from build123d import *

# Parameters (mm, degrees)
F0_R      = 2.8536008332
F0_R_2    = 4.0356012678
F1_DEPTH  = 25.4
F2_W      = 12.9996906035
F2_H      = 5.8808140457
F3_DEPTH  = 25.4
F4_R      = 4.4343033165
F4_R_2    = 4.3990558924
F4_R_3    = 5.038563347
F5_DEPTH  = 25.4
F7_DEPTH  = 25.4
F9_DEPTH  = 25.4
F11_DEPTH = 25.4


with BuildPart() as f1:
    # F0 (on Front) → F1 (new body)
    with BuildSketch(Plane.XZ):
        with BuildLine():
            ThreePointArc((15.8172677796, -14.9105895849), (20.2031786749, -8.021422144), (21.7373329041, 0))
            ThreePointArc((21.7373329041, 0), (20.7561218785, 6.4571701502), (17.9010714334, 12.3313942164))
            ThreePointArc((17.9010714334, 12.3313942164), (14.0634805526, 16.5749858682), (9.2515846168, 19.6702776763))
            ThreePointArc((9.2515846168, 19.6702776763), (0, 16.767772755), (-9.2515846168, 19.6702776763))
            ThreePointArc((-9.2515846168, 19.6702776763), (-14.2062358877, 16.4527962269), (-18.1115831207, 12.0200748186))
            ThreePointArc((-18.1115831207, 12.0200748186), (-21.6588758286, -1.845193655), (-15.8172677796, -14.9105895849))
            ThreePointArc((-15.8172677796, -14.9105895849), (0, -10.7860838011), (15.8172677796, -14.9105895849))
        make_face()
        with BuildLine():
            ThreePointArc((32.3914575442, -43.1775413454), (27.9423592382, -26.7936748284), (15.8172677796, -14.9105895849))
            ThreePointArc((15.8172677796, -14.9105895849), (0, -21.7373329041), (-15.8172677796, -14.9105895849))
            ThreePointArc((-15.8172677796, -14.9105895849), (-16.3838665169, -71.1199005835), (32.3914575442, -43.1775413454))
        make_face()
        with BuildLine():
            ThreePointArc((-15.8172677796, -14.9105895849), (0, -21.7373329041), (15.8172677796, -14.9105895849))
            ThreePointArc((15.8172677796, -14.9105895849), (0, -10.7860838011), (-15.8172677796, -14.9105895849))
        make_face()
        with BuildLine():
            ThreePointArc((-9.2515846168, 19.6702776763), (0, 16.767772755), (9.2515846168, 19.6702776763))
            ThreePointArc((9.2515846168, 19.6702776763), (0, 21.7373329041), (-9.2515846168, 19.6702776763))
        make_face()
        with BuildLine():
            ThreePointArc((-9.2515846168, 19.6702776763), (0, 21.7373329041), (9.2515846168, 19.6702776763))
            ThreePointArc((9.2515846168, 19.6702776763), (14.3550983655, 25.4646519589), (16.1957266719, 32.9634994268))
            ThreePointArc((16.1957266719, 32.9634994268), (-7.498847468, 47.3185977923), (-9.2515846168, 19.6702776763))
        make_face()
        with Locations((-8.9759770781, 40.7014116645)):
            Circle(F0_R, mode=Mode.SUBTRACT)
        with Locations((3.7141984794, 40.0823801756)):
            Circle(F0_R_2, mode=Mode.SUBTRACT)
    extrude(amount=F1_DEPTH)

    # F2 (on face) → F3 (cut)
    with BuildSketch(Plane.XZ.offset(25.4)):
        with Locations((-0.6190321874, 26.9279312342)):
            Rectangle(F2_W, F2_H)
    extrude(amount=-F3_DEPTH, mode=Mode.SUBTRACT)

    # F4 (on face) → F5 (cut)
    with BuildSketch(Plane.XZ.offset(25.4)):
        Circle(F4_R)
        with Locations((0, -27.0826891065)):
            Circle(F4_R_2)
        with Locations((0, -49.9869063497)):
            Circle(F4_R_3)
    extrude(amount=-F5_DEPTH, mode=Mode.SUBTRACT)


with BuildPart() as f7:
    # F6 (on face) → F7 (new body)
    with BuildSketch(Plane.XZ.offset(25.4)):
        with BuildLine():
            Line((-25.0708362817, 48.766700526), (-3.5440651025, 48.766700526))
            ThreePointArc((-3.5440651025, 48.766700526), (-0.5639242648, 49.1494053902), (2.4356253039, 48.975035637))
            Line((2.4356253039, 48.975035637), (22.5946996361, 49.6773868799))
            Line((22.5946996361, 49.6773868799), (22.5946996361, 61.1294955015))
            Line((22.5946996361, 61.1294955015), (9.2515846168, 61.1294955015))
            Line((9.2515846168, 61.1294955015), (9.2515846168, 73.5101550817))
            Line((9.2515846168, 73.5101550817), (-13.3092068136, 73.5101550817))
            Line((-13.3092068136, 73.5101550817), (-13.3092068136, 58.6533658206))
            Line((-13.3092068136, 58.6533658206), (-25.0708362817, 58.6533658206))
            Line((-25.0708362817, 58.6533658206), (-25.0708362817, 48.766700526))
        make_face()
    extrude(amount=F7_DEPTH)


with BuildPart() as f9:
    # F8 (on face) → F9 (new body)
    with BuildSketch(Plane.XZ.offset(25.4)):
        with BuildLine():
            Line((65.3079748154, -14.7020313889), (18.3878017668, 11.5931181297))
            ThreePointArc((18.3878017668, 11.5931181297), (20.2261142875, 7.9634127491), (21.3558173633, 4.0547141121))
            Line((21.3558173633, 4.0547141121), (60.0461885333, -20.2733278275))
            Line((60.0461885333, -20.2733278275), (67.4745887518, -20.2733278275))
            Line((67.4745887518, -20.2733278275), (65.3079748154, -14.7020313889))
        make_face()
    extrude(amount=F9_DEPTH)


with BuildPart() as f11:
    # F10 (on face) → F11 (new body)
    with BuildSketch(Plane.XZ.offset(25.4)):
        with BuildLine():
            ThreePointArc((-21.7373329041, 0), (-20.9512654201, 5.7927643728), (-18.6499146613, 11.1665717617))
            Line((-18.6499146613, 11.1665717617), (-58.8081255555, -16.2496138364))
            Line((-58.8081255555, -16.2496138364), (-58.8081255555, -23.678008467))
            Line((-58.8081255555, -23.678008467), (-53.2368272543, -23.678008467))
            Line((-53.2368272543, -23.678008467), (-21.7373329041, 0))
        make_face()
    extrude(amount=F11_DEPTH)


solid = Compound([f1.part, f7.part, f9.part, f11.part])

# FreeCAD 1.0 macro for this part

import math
import FreeCAD as App
import Part
import Sketcher

V = App.Vector
Q = App.Units.Quantity


def add_polygon(sketch, points):
    """Adds a closed chain of lines whose ends are joined by coincident constraints."""
    first, n = sketch.GeometryCount, len(points)
    for a, b in zip(points, points[1:] + points[:1]):
        sketch.addGeometry(Part.LineSegment(App.Vector(*a, 0), App.Vector(*b, 0)), False)
    for i in range(n):
        sketch.addConstraint(Sketcher.Constraint("Coincident", first + i, 2, first + (i + 1) % n, 1))

doc = App.newDocument("Part")
body = doc.addObject("PartDesign::Body", "Body")

sketch1 = body.newObject("Sketcher::SketchObject", "Sketch")
sketch1.AttachmentSupport = (doc.getObject("XZ_Plane"), [""])
sketch1.MapMode = "FlatFace"
sketch1.addGeometry(Part.ArcOfCircle(Part.Circle(V(0, 0, 0), V(0, 0, 1), 21.7), math.radians(-43), math.radians(0)), False)
sketch1.addGeometry(Part.ArcOfCircle(Part.Circle(V(0, 0, 0), V(0, 0, 1), 21.7), math.radians(0), math.radians(35)), False)
sketch1.addGeometry(Part.ArcOfCircle(Part.Circle(V(0, 0, 0), V(0, 0, 1), 21.7), math.radians(35), math.radians(65)), False)
sketch1.addGeometry(Part.ArcOfCircle(Part.Circle(V(0, 33, 0), V(0, 0, 1), 16.2), math.radians(-55), math.radians(0)), False)
sketch1.addGeometry(Part.ArcOfCircle(Part.Circle(V(0, 33, 0), V(0, 0, 1), 16.2), math.radians(0), math.radians(235)), False)
sketch1.addGeometry(Part.ArcOfCircle(Part.Circle(V(0, 0, 0), V(0, 0, 1), 21.7), math.radians(115), math.radians(146)), False)
sketch1.addGeometry(Part.ArcOfCircle(Part.Circle(V(0, 0, 0), V(0, 0, 1), 21.7), math.radians(146), math.radians(223)), False)
sketch1.addGeometry(Part.ArcOfCircle(Part.Circle(V(0, -43.2, 0), V(0, 0, 1), 32.4), math.radians(119), math.radians(360)), False)
sketch1.addGeometry(Part.ArcOfCircle(Part.Circle(V(0, -43.2, 0), V(0, 0, 1), 32.4), math.radians(0), math.radians(61)), False)
sketch1.addGeometry(Part.Circle(V(-9, 40.7, 0), V(0, 0, 1), 2.9), False)
sketch1.addGeometry(Part.Circle(V(3.7, 40.1, 0), V(0, 0, 1), 4), False)
sketch1.addConstraint(Sketcher.Constraint("Tangent", 0, 2, 1, 1))
sketch1.addConstraint(Sketcher.Constraint("Tangent", 1, 2, 2, 1))
sketch1.addConstraint(Sketcher.Constraint("Coincident", 2, 2, 3, 1))
sketch1.addConstraint(Sketcher.Constraint("Tangent", 3, 2, 4, 1))
sketch1.addConstraint(Sketcher.Constraint("Coincident", 4, 2, 5, 1))
sketch1.addConstraint(Sketcher.Constraint("Tangent", 5, 2, 6, 1))
sketch1.addConstraint(Sketcher.Constraint("Coincident", 6, 2, 7, 1))
sketch1.addConstraint(Sketcher.Constraint("Tangent", 7, 2, 8, 1))
sketch1.addConstraint(Sketcher.Constraint("Coincident", 8, 2, 0, 1))
sketch1.addConstraint(Sketcher.Constraint("Coincident", 0, 3, -1, 1))
sketch1.addConstraint(Sketcher.Constraint("Coincident", 2, 3, -1, 1))
sketch1.addConstraint(Sketcher.Constraint("Coincident", 5, 3, -1, 1))
sketch1.addConstraint(Sketcher.Constraint("Equal", 3, 4))
sketch1.addConstraint(Sketcher.Constraint("Equal", 2, 5))
sketch1.addConstraint(Sketcher.Constraint("Equal", 5, 6))
sketch1.addConstraint(Sketcher.Constraint("Equal", 7, 8))
sketch1.addConstraint(Sketcher.Constraint("PointOnObject", 3, 3, -2))
sketch1.addConstraint(Sketcher.Constraint("PointOnObject", 7, 3, -2))
sketch1.addConstraint(Sketcher.Constraint("PointOnObject", 0, 2, -1))
sketch1.addConstraint(Sketcher.Constraint("Horizontal", 4, 3, 3, 2))
sketch1.addConstraint(Sketcher.Constraint("Horizontal", 8, 3, 7, 2))
sketch1.addConstraint(Sketcher.Constraint("Diameter", 9, Q("5.707202 mm")))
sketch1.addConstraint(Sketcher.Constraint("Diameter", 10, Q("8.071203 mm")))
sketch1.addConstraint(Sketcher.Constraint("Radius", 0, Q("21.737333 mm")))
sketch1.addConstraint(Sketcher.Constraint("Radius", 3, Q("16.195727 mm")))
sketch1.addConstraint(Sketcher.Constraint("Radius", 7, Q("32.391458 mm")))
sketch1.addConstraint(Sketcher.Constraint("DistanceY", -1, 1, 3, 3, Q("32.963499 mm")))
sketch1.addConstraint(Sketcher.Constraint("DistanceX", -1, 1, 10, 3, Q("3.714198 mm")))
sketch1.addConstraint(Sketcher.Constraint("DistanceX", 5, 2, 4, 2, Q("8.859999 mm")))
sketch1.addConstraint(Sketcher.Constraint("DistanceY", 7, 3, -1, 1, Q("43.177541 mm")))
sketch1.addConstraint(Sketcher.Constraint("DistanceY", -1, 1, 9, 3, Q("40.701412 mm")))
sketch1.addConstraint(Sketcher.Constraint("DistanceY", -1, 1, 10, 3, Q("40.08238 mm")))
sketch1.addConstraint(Sketcher.Constraint("DistanceX", -1, 1, 1, 2, Q("17.901071 mm")))
sketch1.addConstraint(Sketcher.Constraint("DistanceX", 9, 3, -1, 1, Q("8.975977 mm")))
pad1 = body.newObject("PartDesign::Pad", "Pad")
pad1.Profile = sketch1
pad1.Length = Q("1 in")

sketch2 = body.newObject("Sketcher::SketchObject", "Sketch001")
sketch2.AttachmentSupport = (doc.getObject("XZ_Plane"), [""])
sketch2.MapMode = "FlatFace"
sketch2.AttachmentOffset = App.Placement(V(0, 0, 1 * 25.4), App.Rotation())
add_polygon(sketch2, [(-7, 30), (-7, 24), (6, 24), (6, 30)])
sketch2.addConstraint(Sketcher.Constraint("Vertical", 0))
sketch2.addConstraint(Sketcher.Constraint("Horizontal", 1))
sketch2.addConstraint(Sketcher.Constraint("Vertical", 2))
sketch2.addConstraint(Sketcher.Constraint("Horizontal", 3))
sketch2.addConstraint(Sketcher.Constraint("DistanceX", 1, 1, 1, 2, Q("12.999691 mm")))
sketch2.addConstraint(Sketcher.Constraint("DistanceY", 0, 2, 0, 1, Q("5.880814 mm")))
sketch2.addConstraint(Sketcher.Constraint("DistanceY", -1, 1, 2, 2, Q("29.868338 mm")))
sketch2.addConstraint(Sketcher.Constraint("DistanceX", 0, 2, -1, 1, Q("7.118877 mm")))
pocket1 = body.newObject("PartDesign::Pocket", "Pocket")
pocket1.Profile = sketch2
pocket1.Length = Q("1 in")

sketch3 = body.newObject("Sketcher::SketchObject", "Sketch002")
sketch3.AttachmentSupport = (doc.getObject("XZ_Plane"), [""])
sketch3.MapMode = "FlatFace"
sketch3.AttachmentOffset = App.Placement(V(0, 0, 1 * 25.4), App.Rotation())
sketch3.addGeometry(Part.Circle(V(0, 0, 0), V(0, 0, 1), 4.4), False)
sketch3.addGeometry(Part.Circle(V(0, -27.1, 0), V(0, 0, 1), 4.4), False)
sketch3.addGeometry(Part.Circle(V(0, -50, 0), V(0, 0, 1), 5), False)
sketch3.addConstraint(Sketcher.Constraint("Coincident", 0, 3, -1, 1))
sketch3.addConstraint(Sketcher.Constraint("PointOnObject", 1, 3, -2))
sketch3.addConstraint(Sketcher.Constraint("PointOnObject", 2, 3, -2))
sketch3.addConstraint(Sketcher.Constraint("Diameter", 1, Q("8.798112 mm")))
sketch3.addConstraint(Sketcher.Constraint("Diameter", 0, Q("8.868607 mm")))
sketch3.addConstraint(Sketcher.Constraint("Diameter", 2, Q("10.077127 mm")))
sketch3.addConstraint(Sketcher.Constraint("DistanceY", 1, 3, -1, 1, Q("27.082689 mm")))
sketch3.addConstraint(Sketcher.Constraint("DistanceY", 2, 3, -1, 1, Q("49.986906 mm")))
pocket2 = body.newObject("PartDesign::Pocket", "Pocket001")
pocket2.Profile = sketch3
pocket2.Length = Q("1 in")
body2 = doc.addObject("PartDesign::Body", "Body001")

sketch4 = body2.newObject("Sketcher::SketchObject", "Sketch003")
sketch4.AttachmentSupport = (doc.getObject("XZ_Plane001"), [""])
sketch4.MapMode = "FlatFace"
sketch4.AttachmentOffset = App.Placement(V(0, 0, 1 * 25.4), App.Rotation())
sketch4.addGeometry(Part.LineSegment(V(-25, 49, 0), V(-4, 49, 0)), False)
sketch4.addGeometry(Part.ArcOfCircle(Part.Circle(V(0, 33, 0), V(0, 0, 1), 16), math.radians(81), math.radians(103)), False)
sketch4.addGeometry(Part.LineSegment(V(2, 49, 0), V(23, 50, 0)), False)
sketch4.addGeometry(Part.LineSegment(V(23, 50, 0), V(23, 61, 0)), False)
sketch4.addGeometry(Part.LineSegment(V(23, 61, 0), V(9, 61, 0)), False)
sketch4.addGeometry(Part.LineSegment(V(9, 61, 0), V(9, 74, 0)), False)
sketch4.addGeometry(Part.LineSegment(V(9, 74, 0), V(-13, 74, 0)), False)
sketch4.addGeometry(Part.LineSegment(V(-13, 74, 0), V(-13, 59, 0)), False)
sketch4.addGeometry(Part.LineSegment(V(-13, 59, 0), V(-25, 59, 0)), False)
sketch4.addGeometry(Part.LineSegment(V(-25, 59, 0), V(-25, 49, 0)), False)
sketch4.addConstraint(Sketcher.Constraint("Coincident", 0, 2, 1, 2))
sketch4.addConstraint(Sketcher.Constraint("Coincident", 1, 1, 2, 1))
sketch4.addConstraint(Sketcher.Constraint("Coincident", 2, 2, 3, 1))
sketch4.addConstraint(Sketcher.Constraint("Coincident", 3, 2, 4, 1))
sketch4.addConstraint(Sketcher.Constraint("Coincident", 4, 2, 5, 1))
sketch4.addConstraint(Sketcher.Constraint("Coincident", 5, 2, 6, 1))
sketch4.addConstraint(Sketcher.Constraint("Coincident", 6, 2, 7, 1))
sketch4.addConstraint(Sketcher.Constraint("Coincident", 7, 2, 8, 1))
sketch4.addConstraint(Sketcher.Constraint("Coincident", 8, 2, 9, 1))
sketch4.addConstraint(Sketcher.Constraint("Coincident", 9, 2, 0, 1))
sketch4.addConstraint(Sketcher.Constraint("Horizontal", 0))
sketch4.addConstraint(Sketcher.Constraint("Vertical", 3))
sketch4.addConstraint(Sketcher.Constraint("Horizontal", 4))
sketch4.addConstraint(Sketcher.Constraint("Vertical", 5))
sketch4.addConstraint(Sketcher.Constraint("Horizontal", 6))
sketch4.addConstraint(Sketcher.Constraint("Vertical", 7))
sketch4.addConstraint(Sketcher.Constraint("Horizontal", 8))
sketch4.addConstraint(Sketcher.Constraint("Vertical", 9))
sketch4.addConstraint(Sketcher.Constraint("PointOnObject", 1, 3, -2))
sketch4.addConstraint(Sketcher.Constraint("Radius", 1, Q("16.195727 mm")))
sketch4.addConstraint(Sketcher.Constraint("DistanceX", 0, 1, 0, 2, Q("21.526771 mm")))
sketch4.addConstraint(Sketcher.Constraint("DistanceX", 6, 2, 6, 1, Q("22.560791 mm")))
sketch4.addConstraint(Sketcher.Constraint("DistanceX", 8, 2, 8, 1, Q("11.761629 mm")))
sketch4.addConstraint(Sketcher.Constraint("DistanceY", 3, 1, 3, 2, Q("11.452109 mm")))
sketch4.addConstraint(Sketcher.Constraint("DistanceY", 5, 1, 5, 2, Q("12.38066 mm")))
sketch4.addConstraint(Sketcher.Constraint("DistanceY", 7, 2, 7, 1, Q("14.856789 mm")))
sketch4.addConstraint(Sketcher.Constraint("DistanceY", -1, 1, 1, 3, Q("32.963499 mm")))
sketch4.addConstraint(Sketcher.Constraint("DistanceY", -1, 1, 0, 2, Q("48.766701 mm")))
sketch4.addConstraint(Sketcher.Constraint("DistanceX", -1, 1, 2, 2, Q("22.5947 mm")))
sketch4.addConstraint(Sketcher.Constraint("DistanceY", 9, 2, 9, 1, Q("9.886665 mm")))
sketch4.addConstraint(Sketcher.Constraint("DistanceX", 0, 2, 1, 1, Q("5.97969 mm")))
pad2 = body2.newObject("PartDesign::Pad", "Pad001")
pad2.Profile = sketch4
pad2.Length = Q("1 in")
body3 = doc.addObject("PartDesign::Body", "Body002")

sketch5 = body3.newObject("Sketcher::SketchObject", "Sketch004")
sketch5.AttachmentSupport = (doc.getObject("XZ_Plane002"), [""])
sketch5.MapMode = "FlatFace"
sketch5.AttachmentOffset = App.Placement(V(0, 0, 1 * 25.4), App.Rotation())
sketch5.addGeometry(Part.LineSegment(V(65, -15, 0), V(18, 12, 0)), False)
sketch5.addGeometry(Part.ArcOfCircle(Part.Circle(V(0, 0, 0), V(0, 0, 1), 22), math.radians(11), math.radians(32)), False)
sketch5.addGeometry(Part.LineSegment(V(21, 4, 0), V(60, -20, 0)), False)
sketch5.addGeometry(Part.LineSegment(V(60, -20, 0), V(67, -20, 0)), False)
sketch5.addGeometry(Part.LineSegment(V(67, -20, 0), V(65, -15, 0)), False)
sketch5.addConstraint(Sketcher.Constraint("Coincident", 0, 2, 1, 2))
sketch5.addConstraint(Sketcher.Constraint("Coincident", 1, 1, 2, 1))
sketch5.addConstraint(Sketcher.Constraint("Coincident", 2, 2, 3, 1))
sketch5.addConstraint(Sketcher.Constraint("Coincident", 3, 2, 4, 1))
sketch5.addConstraint(Sketcher.Constraint("Coincident", 4, 2, 0, 1))
sketch5.addConstraint(Sketcher.Constraint("Horizontal", 3))
sketch5.addConstraint(Sketcher.Constraint("Coincident", 1, 3, -1, 1))
sketch5.addConstraint(Sketcher.Constraint("DistanceX", 3, 1, 3, 2, Q("7.4284 mm")))
sketch5.addConstraint(Sketcher.Constraint("Radius", 1, Q("21.737333 mm")))
sketch5.addConstraint(Sketcher.Constraint("DistanceX", 1, 1, 4, 2, Q("1.7303999 in")))
sketch5.addConstraint(Sketcher.Constraint("DistanceX", -1, 1, 0, 2, Q("18.387802 mm")))
sketch5.addConstraint(Sketcher.Constraint("DistanceX", -1, 1, 2, 2, Q("60.046189 mm")))
sketch5.addConstraint(Sketcher.Constraint("DistanceY", 4, 2, -1, 1, Q("14.702031 mm")))
sketch5.addConstraint(Sketcher.Constraint("DistanceX", 1, 1, 2, 2, Q("38.690371 mm")))
sketch5.addConstraint(Sketcher.Constraint("DistanceY", 2, 2, 1, 1, Q("24.328042 mm")))
pad3 = body3.newObject("PartDesign::Pad", "Pad002")
pad3.Profile = sketch5
pad3.Length = Q("1 in")
body4 = doc.addObject("PartDesign::Body", "Body003")

sketch6 = body4.newObject("Sketcher::SketchObject", "Sketch005")
sketch6.AttachmentSupport = (doc.getObject("XZ_Plane003"), [""])
sketch6.MapMode = "FlatFace"
sketch6.AttachmentOffset = App.Placement(V(0, 0, 1 * 25.4), App.Rotation())
sketch6.addGeometry(Part.ArcOfCircle(Part.Circle(V(0, 0, 0), V(0, 0, 1), 22), math.radians(149), math.radians(180)), False)
sketch6.addGeometry(Part.LineSegment(V(-19, 11, 0), V(-59, -16, 0)), False)
sketch6.addGeometry(Part.LineSegment(V(-59, -16, 0), V(-59, -24, 0)), False)
sketch6.addGeometry(Part.LineSegment(V(-59, -24, 0), V(-53, -24, 0)), False)
sketch6.addGeometry(Part.LineSegment(V(-53, -24, 0), V(-22, 0, 0)), False)
sketch6.addConstraint(Sketcher.Constraint("Coincident", 0, 1, 1, 1))
sketch6.addConstraint(Sketcher.Constraint("Coincident", 1, 2, 2, 1))
sketch6.addConstraint(Sketcher.Constraint("Coincident", 2, 2, 3, 1))
sketch6.addConstraint(Sketcher.Constraint("Coincident", 3, 2, 4, 1))
sketch6.addConstraint(Sketcher.Constraint("Coincident", 4, 2, 0, 2))
sketch6.addConstraint(Sketcher.Constraint("Vertical", 2))
sketch6.addConstraint(Sketcher.Constraint("Horizontal", 3))
sketch6.addConstraint(Sketcher.Constraint("Coincident", 0, 3, -1, 1))
sketch6.addConstraint(Sketcher.Constraint("PointOnObject", 4, 2, -1))
sketch6.addConstraint(Sketcher.Constraint("DistanceX", 3, 1, 3, 2, Q("5.571298 mm")))
sketch6.addConstraint(Sketcher.Constraint("Radius", 0, Q("21.737333 mm")))
sketch6.addConstraint(Sketcher.Constraint("DistanceY", 2, 2, 2, 1, Q("7.428395 mm")))
sketch6.addConstraint(Sketcher.Constraint("DistanceY", -1, 1, 0, 1, Q("11.166572 mm")))
sketch6.addConstraint(Sketcher.Constraint("DistanceY", 2, 2, -1, 1, Q("23.678008 mm")))
sketch6.addConstraint(Sketcher.Constraint("DistanceX", 1, 2, 0, 1, Q("40.158211 mm")))
pad4 = body4.newObject("PartDesign::Pad", "Pad003")
pad4.Profile = sketch6
pad4.Length = Q("1 in")

doc.recompute()
